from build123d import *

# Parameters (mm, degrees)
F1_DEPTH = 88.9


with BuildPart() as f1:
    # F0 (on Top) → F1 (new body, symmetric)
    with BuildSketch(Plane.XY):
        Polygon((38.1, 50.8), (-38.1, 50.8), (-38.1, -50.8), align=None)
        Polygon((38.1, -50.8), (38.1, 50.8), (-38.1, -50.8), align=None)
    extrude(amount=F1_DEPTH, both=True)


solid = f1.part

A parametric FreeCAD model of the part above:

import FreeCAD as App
import Part
import Sketcher

V = App.Vector
Q = App.Units.Quantity


def add_polygon(sketch, points):
    """Adds a closed chain of lines whose ends are joined by coincident constraints."""
    first, n = sketch.GeometryCount, len(points)
    for a, b in zip(points, points[1:] + points[:1]):
        sketch.addGeometry(Part.LineSegment(App.Vector(*a, 0), App.Vector(*b, 0)), False)
    for i in range(n):
        sketch.addConstraint(Sketcher.Constraint("Coincident", first + i, 2, first + (i + 1) % n, 1))

doc = App.newDocument("Part")
params = doc.addObject("Spreadsheet::Sheet", "Params")
for row, (alias, value) in enumerate([
    ("sketch1_width", "3 in"),
    ("sketch1_height", "4 in"),
    ("pad1_length", "7 in"),
], start=1):
    params.set(f"A{row}", alias)
    params.set(f"B{row}", "=" + value)
    params.setAlias(f"B{row}", alias)

body = doc.addObject("PartDesign::Body", "Body")

# Sketch on XY plane
sketch1 = body.newObject("Sketcher::SketchObject", "Sketch")
sketch1.AttachmentSupport = (doc.getObject("XY_Plane"), [""])
sketch1.MapMode = "FlatFace"
add_polygon(sketch1, [(38, 51), (-38, 51), (-38, -51), (38, -51)])  # lines 0-3
sketch1.addConstraint(Sketcher.Constraint("Horizontal", 0))
sketch1.addConstraint(Sketcher.Constraint("Vertical", 1))
sketch1.addConstraint(Sketcher.Constraint("Horizontal", 2))
sketch1.addConstraint(Sketcher.Constraint("Vertical", 3))
sketch1.addConstraint(Sketcher.Constraint("Symmetric", 0, 2, 2, 2, -1, 1))
sketch1.addConstraint(Sketcher.Constraint("DistanceX", 0, 2, 0, 1, Q("3 in")))
sketch1.addConstraint(Sketcher.Constraint("DistanceY", 1, 2, 1, 1, Q("4 in")))
sketch1.setExpression("Constraints[9]", "Params.sketch1_width")
sketch1.setExpression("Constraints[10]", "Params.sketch1_height")
pad1 = body.newObject("PartDesign::Pad", "Pad")
pad1.Profile = sketch1
pad1.setExpression("Length", "Params.pad1_length")
pad1.Midplane = True

doc.recompute()
